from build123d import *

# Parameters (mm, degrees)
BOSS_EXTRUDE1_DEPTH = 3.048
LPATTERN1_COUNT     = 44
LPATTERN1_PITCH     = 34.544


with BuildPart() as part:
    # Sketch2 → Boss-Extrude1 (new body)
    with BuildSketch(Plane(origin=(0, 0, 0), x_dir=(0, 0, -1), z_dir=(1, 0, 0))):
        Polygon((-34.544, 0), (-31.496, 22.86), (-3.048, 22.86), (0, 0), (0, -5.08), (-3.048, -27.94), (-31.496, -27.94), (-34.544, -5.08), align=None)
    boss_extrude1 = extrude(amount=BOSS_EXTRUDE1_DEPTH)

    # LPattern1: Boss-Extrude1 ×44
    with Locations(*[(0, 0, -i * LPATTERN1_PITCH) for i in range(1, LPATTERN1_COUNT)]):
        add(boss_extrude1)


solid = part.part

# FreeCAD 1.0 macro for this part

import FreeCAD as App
import Part
import Sketcher

V = App.Vector
Q = App.Units.Quantity


def add_polygon(sketch, points):
    """Adds a closed chain of lines whose ends are joined by coincident constraints."""
    first, n = sketch.GeometryCount, len(points)
    for a, b in zip(points, points[1:] + points[:1]):
        sketch.addGeometry(Part.LineSegment(App.Vector(*a, 0), App.Vector(*b, 0)), False)
    for i in range(n):
        sketch.addConstraint(Sketcher.Constraint("Coincident", first + i, 2, first + (i + 1) % n, 1))

doc = App.newDocument("Part")
body = doc.addObject("PartDesign::Body", "Body")

# Sketch on YZ plane
sketch1 = body.newObject("Sketcher::SketchObject", "Sketch")
sketch1.AttachmentSupport = (doc.getObject("YZ_Plane"), [""])
sketch1.MapMode = "FlatFace"
add_polygon(sketch1, [(22.86, 31.496), (0, 34.544), (-5.08, 34.544), (-27.94, 31.496), (-27.94, 3.048), (-5.08, 0), (0, 0), (22.86, 3.048)])  # lines 0-7
sketch1.addConstraint([
    Sketcher.Constraint("Horizontal", 1),
    Sketcher.Constraint("Vertical", 3),
    Sketcher.Constraint("Horizontal", 5),
    Sketcher.Constraint("Vertical", 7),
    Sketcher.Constraint("Coincident", 5, 2, -1, 1),
    Sketcher.Constraint("PointOnObject", 0, 2, -2),
    Sketcher.Constraint("Parallel", 0, 4),
    Sketcher.Constraint("Parallel", 2, 6),
    Sketcher.Constraint("Horizontal", 3, 2, 6, 2),
    Sketcher.Constraint("Horizontal", 2, 2, 7, 2),
    Sketcher.Constraint("Vertical", 1, 2, 4, 2),
    Sketcher.Constraint("DistanceX", 1, 2, 1, 1, Q("0.2 in")),
    Sketcher.Constraint("DistanceX", 3, 2, 6, 2, Q("2 in")),
    Sketcher.Constraint("DistanceY", 3, 2, 3, 1, Q("1.12 in")),
    Sketcher.Constraint("DistanceY", -1, 1, 0, 2, Q("1.36 in")),
])
pad1 = body.newObject("PartDesign::Pad", "Pad")
pad1.Profile = sketch1
pad1.Length = Q("0.12 in")
doc.recompute()

linearpattern = body.newObject("PartDesign::LinearPattern", "LinearPattern")
linearpattern.Originals = [pad1]
linearpattern.Direction = (doc.getObject("Z_Axis"), [""])
linearpattern.Mode = "offset"
linearpattern.Offset = Q("1.36 in")
linearpattern.Occurrences = 44
linearpattern.Reversed = True
body.Tip = linearpattern

doc.recompute()
